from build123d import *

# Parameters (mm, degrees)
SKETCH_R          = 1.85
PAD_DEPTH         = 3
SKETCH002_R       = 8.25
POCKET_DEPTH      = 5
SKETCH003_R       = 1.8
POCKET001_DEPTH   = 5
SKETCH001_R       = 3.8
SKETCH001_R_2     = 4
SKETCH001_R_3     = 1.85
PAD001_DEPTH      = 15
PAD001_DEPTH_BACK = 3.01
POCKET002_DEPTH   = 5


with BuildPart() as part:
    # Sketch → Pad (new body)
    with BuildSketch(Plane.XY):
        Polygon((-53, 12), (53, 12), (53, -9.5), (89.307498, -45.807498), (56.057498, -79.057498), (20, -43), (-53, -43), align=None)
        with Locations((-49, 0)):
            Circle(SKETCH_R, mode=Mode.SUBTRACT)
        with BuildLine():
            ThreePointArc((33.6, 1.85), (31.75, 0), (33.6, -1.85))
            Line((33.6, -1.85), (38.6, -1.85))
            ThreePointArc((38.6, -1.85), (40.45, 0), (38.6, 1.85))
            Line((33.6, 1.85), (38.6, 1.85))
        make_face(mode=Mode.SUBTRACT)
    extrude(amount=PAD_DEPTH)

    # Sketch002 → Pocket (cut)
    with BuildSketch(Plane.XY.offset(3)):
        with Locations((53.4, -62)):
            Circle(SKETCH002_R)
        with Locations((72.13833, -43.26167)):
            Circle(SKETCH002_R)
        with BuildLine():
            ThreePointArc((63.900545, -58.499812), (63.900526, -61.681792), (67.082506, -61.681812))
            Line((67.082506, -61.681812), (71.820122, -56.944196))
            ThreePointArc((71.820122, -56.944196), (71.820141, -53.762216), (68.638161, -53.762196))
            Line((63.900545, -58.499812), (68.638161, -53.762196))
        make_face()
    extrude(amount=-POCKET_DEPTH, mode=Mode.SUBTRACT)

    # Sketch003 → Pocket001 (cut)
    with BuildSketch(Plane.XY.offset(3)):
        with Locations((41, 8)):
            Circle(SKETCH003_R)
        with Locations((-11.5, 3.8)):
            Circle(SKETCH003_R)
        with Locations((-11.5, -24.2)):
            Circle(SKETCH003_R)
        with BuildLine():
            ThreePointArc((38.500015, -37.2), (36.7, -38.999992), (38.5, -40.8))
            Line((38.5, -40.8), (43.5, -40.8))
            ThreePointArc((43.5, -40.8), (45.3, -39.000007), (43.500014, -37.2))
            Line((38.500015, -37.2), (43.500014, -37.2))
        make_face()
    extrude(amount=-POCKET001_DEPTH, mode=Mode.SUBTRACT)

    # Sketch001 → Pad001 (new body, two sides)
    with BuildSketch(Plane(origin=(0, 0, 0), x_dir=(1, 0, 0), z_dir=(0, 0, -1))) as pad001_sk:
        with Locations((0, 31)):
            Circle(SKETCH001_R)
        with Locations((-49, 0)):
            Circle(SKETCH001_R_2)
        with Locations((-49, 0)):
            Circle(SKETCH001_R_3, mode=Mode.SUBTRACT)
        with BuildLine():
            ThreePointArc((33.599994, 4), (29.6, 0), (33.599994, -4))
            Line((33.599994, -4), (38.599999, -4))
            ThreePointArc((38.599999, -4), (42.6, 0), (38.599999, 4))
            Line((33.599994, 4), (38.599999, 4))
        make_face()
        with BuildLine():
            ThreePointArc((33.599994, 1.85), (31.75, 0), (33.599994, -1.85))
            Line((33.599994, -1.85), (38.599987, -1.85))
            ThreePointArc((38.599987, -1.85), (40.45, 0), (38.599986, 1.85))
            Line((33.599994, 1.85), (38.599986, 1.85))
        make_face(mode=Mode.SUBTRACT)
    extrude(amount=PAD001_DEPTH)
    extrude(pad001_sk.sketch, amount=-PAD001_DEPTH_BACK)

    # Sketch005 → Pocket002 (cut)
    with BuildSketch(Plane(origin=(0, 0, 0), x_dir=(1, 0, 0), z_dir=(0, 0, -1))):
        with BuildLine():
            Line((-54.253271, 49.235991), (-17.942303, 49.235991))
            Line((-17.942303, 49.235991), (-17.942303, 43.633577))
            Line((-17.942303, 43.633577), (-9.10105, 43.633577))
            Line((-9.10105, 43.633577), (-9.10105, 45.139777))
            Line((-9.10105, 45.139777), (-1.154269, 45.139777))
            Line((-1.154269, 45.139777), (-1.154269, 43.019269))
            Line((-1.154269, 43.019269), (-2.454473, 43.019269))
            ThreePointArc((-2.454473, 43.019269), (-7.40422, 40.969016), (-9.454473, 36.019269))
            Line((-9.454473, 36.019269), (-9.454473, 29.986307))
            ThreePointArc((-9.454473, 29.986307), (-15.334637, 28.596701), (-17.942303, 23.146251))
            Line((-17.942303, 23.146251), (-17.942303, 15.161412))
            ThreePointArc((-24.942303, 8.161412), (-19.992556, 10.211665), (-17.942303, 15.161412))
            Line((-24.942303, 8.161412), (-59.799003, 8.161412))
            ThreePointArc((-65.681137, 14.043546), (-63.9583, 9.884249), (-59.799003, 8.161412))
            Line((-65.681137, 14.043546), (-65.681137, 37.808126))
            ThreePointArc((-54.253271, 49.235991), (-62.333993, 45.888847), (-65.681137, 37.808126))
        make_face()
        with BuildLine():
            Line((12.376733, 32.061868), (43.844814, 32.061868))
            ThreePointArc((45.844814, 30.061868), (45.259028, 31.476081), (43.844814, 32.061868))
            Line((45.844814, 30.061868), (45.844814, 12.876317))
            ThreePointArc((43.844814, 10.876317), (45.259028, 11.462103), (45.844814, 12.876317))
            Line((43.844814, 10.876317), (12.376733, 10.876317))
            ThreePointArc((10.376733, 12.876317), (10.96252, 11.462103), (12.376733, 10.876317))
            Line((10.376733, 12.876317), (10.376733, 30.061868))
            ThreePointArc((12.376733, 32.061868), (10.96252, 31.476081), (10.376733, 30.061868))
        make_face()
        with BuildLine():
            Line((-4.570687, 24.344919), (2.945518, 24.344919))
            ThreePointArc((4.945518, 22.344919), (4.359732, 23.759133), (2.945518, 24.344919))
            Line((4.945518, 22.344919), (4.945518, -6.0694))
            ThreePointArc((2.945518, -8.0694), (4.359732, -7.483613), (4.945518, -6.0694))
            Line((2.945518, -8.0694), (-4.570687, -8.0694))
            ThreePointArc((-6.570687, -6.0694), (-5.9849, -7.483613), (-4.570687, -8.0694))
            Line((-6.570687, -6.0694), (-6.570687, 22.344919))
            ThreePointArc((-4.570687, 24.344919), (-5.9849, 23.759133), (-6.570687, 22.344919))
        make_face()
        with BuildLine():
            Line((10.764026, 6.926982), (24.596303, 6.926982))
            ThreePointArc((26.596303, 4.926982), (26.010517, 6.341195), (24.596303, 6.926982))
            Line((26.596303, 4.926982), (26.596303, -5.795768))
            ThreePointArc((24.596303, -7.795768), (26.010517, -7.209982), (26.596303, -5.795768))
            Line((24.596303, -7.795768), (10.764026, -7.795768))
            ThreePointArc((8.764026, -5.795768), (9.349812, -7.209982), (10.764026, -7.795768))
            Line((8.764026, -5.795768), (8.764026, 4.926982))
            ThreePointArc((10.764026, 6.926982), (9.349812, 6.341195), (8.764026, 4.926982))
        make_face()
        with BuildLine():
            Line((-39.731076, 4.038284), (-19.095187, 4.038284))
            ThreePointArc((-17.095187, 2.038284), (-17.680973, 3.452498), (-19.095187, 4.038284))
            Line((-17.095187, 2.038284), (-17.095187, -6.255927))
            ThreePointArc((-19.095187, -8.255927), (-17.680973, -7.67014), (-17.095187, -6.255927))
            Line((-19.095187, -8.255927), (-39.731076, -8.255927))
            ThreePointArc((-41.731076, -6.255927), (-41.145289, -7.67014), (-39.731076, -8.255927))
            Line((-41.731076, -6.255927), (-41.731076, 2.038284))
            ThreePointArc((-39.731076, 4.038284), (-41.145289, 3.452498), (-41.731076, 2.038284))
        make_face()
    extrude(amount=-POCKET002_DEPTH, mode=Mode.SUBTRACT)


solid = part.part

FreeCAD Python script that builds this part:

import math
import FreeCAD as App
import Part
import Sketcher
from FreeCAD import Vector
Q = App.Units.Quantity


def add_polygon(sketch, points):
    """Adds a closed chain of lines whose ends are joined by coincident constraints."""
    first, n = sketch.GeometryCount, len(points)
    for a, b in zip(points, points[1:] + points[:1]):
        sketch.addGeometry(Part.LineSegment(App.Vector(*a, 0), App.Vector(*b, 0)), False)
    for i in range(n):
        sketch.addConstraint(Sketcher.Constraint("Coincident", first + i, 2, first + (i + 1) % n, 1))

doc = App.newDocument("Part")
params = doc.addObject("Spreadsheet::Sheet", "Params")
for row, (alias, value) in enumerate([
    ("sketch1_diameter", "3.7 mm"),
    ("sketch1_width", "106 mm"),
    ("sketch1_width2", "73 mm"),
    ("sketch1_width3", "5 mm"),
    ("sketch1_height", "55 mm"),
    ("pad1_length", "3 mm"),
    ("sketch2_diameter", "16.5 mm"),
    ("sketch2_radius", "2.25 mm"),
    ("sketch2_length", "6.700001 mm"),
    ("pocket1_length", "5 mm"),
    ("sketch3_diameter", "3.6 mm"),
    ("sketch3_width", "5 mm"),
    ("pocket2_length", "5 mm"),
    ("sketch4_diameter", "8 mm"),
    ("sketch4_diameter2", "7.6 mm"),
    ("sketch4_diameter3", "3.7 mm"),
    ("pad2_length", "15 mm"),
    ("pad2_length2", "3.01 mm"),
    ("sketch5_radius", "7.000002 mm"),
    ("sketch5_radius2", "2.000002 mm"),
    ("pocket3_length", "5 mm"),
], start=1):
    params.set(f"A{row}", alias)
    params.set(f"B{row}", "=" + value)
    params.setAlias(f"B{row}", alias)

body = doc.addObject("PartDesign::Body", "Body")

# Sketch on XY plane
sketch1 = doc.addObject("Sketcher::SketchObject", "Sketch")
body.addObject(sketch1)
sketch1.AttachmentSupport = (doc.XY_Plane, [""])
sketch1.MapMode = "FlatFace"
add_polygon(sketch1, [(53, 12), (-53, 12), (-53, -43), (20, -43), (56.057498, -79.057498), (89.307498, -45.807498), (53, -9.5)])  # lines 0-6
sketch1.addGeometry(Part.LineSegment(Vector(33.6, 1.85, 0), Vector(38.6, 1.85, 0)), False)  # 7
sketch1.addGeometry(Part.ArcOfCircle(Part.Circle(Vector(38.6, 0, 0), Vector(0, 0, 1), 1.85), math.radians(-90), math.radians(90)), False)  # 8
sketch1.addGeometry(Part.LineSegment(Vector(38.6, -1.85, 0), Vector(33.6, -1.85, 0)), False)  # 9
sketch1.addGeometry(Part.ArcOfCircle(Part.Circle(Vector(33.6, 0, 0), Vector(0, 0, 1), 1.85), math.radians(90), math.radians(270)), False)  # 10
sketch1.addGeometry(Part.Circle(Vector(-49, 0, 0), Vector(0, 0, 1), 1.85), False)  # 11
sketch1.addConstraint(Sketcher.Constraint("Tangent", 7, 2, 8, 2))
sketch1.addConstraint(Sketcher.Constraint("Tangent", 8, 1, 9, 1))
sketch1.addConstraint(Sketcher.Constraint("Tangent", 9, 2, 10, 2))
sketch1.addConstraint(Sketcher.Constraint("Tangent", 10, 1, 7, 1))
sketch1.addConstraint(Sketcher.Constraint("Horizontal", 0))
sketch1.addConstraint(Sketcher.Constraint("Vertical", 1))
sketch1.addConstraint(Sketcher.Constraint("Horizontal", 2))
sketch1.addConstraint(Sketcher.Constraint("Vertical", 6))
sketch1.addConstraint(Sketcher.Constraint("Horizontal", 7))
sketch1.addConstraint(Sketcher.Constraint("Horizontal", 9))
sketch1.addConstraint(Sketcher.Constraint("Equal", 10, 11))
sketch1.addConstraint(Sketcher.Constraint("PointOnObject", 8, 3, -1))
sketch1.addConstraint(Sketcher.Constraint("PointOnObject", 11, 3, -1))
sketch1.addConstraint(Sketcher.Constraint("Perpendicular", 3, 4))
sketch1.addConstraint(Sketcher.Constraint("Perpendicular", 4, 5))
sketch1.addConstraint(Sketcher.Constraint("Diameter", 11, Q("3.7 mm")))
sketch1.addConstraint(Sketcher.Constraint("DistanceX", 0, 2, 0, 1, Q("106 mm")))
sketch1.addConstraint(Sketcher.Constraint("DistanceX", 2, 1, 2, 2, Q("73 mm")))
sketch1.addConstraint(Sketcher.Constraint("DistanceX", 7, 1, 7, 2, Q("5 mm")))
sketch1.addConstraint(Sketcher.Constraint("DistanceY", 1, 2, 1, 1, Q("55 mm")))
sketch1.addConstraint(Sketcher.Constraint("Angle", 3, Q("-45 deg")))
sketch1.addConstraint(Sketcher.Constraint("DistanceY", 6, 1, 6, 2, Q("21.5 mm")))
sketch1.addConstraint(Sketcher.Constraint("DistanceX", 11, 3, -1, 1, Q("49 mm")))
sketch1.addConstraint(Sketcher.Constraint("DistanceX", 0, 2, -1, 1, Q("53 mm")))
sketch1.addConstraint(Sketcher.Constraint("DistanceY", -1, 1, 0, 2, Q("12 mm")))
sketch1.addConstraint(Sketcher.Constraint("DistanceX", -1, 1, 8, 3, Q("38.6 mm")))
sketch1.addConstraint(Sketcher.Constraint("DistanceX", -1, 1, 3, 2, Q("56.057498 mm")))
sketch1.setExpression("Constraints[22]", "Params.sketch1_diameter")
sketch1.setExpression("Constraints[23]", "Params.sketch1_width")
sketch1.setExpression("Constraints[24]", "Params.sketch1_width2")
sketch1.setExpression("Constraints[25]", "Params.sketch1_width3")
sketch1.setExpression("Constraints[26]", "Params.sketch1_height")
pad1 = doc.addObject("PartDesign::Pad", "Pad")
body.addObject(pad1)
pad1.Profile = sketch1
pad1.setExpression("Length", "Params.pad1_length")

# Sketch on XY plane
sketch2 = doc.addObject("Sketcher::SketchObject", "Sketch001")
body.addObject(sketch2)
sketch2.AttachmentSupport = (doc.XY_Plane, [""])
sketch2.MapMode = "FlatFace"
sketch2.AttachmentOffset = App.Placement(Vector(0, 0, 3), App.Rotation())
sketch2.addGeometry(Part.Circle(Vector(53.4, -62, 0), Vector(0, 0, 1), 8.25), False)
sketch2.addGeometry(Part.Circle(Vector(72.13833, -43.26167, 0), Vector(0, 0, 1), 8.25), False)
sketch2.addGeometry(Part.ArcOfCircle(Part.Circle(Vector(65.491526, -60.090812, 0), Vector(0, 0, 1), 2.25), math.radians(134.999667), math.radians(314.999631)), False)
sketch2.addGeometry(Part.LineSegment(Vector(67.082506, -61.681812, 0), Vector(71.820122, -56.944196, 0)), False)
sketch2.addGeometry(Part.ArcOfCircle(Part.Circle(Vector(70.229141, -55.353197, 0), Vector(0, 0, 1), 2.25), math.radians(-45.000333), math.radians(134.999631)), False)
sketch2.addGeometry(Part.LineSegment(Vector(68.638161, -53.762196, 0), Vector(63.900545, -58.499812, 0)), False)
sketch2.addConstraint(Sketcher.Constraint("Coincident", 2, 2, 3, 1))
sketch2.addConstraint(Sketcher.Constraint("Coincident", 3, 2, 4, 1))
sketch2.addConstraint(Sketcher.Constraint("Coincident", 4, 2, 5, 1))
sketch2.addConstraint(Sketcher.Constraint("Coincident", 5, 2, 2, 1))
sketch2.addConstraint(Sketcher.Constraint("Equal", 0, 1))
sketch2.addConstraint(Sketcher.Constraint("Equal", 2, 4))
sketch2.addConstraint(Sketcher.Constraint("Equal", 3, 5))
sketch2.addConstraint(Sketcher.Constraint("Diameter", 0, Q("16.5 mm")))
sketch2.addConstraint(Sketcher.Constraint("Angle", 3, Q("45 deg")))
sketch2.addConstraint(Sketcher.Constraint("Radius", 2, Q("2.25 mm")))
sketch2.addConstraint(Sketcher.Constraint("DistanceY", 0, 3, -1, 1, Q("62 mm")))
sketch2.addConstraint(Sketcher.Constraint("Distance", 3, Q("6.700001 mm")))
sketch2.addConstraint(Sketcher.Constraint("DistanceX", -1, 1, 0, 3, Q("53.4 mm")))
sketch2.addConstraint(Sketcher.Constraint("DistanceY", 2, 2, 2, 3, Q("1.591 mm")))
sketch2.addConstraint(Sketcher.Constraint("DistanceY", 3, 2, 4, 3, Q("1.590999 mm")))
sketch2.addConstraint(Sketcher.Constraint("DistanceY", 4, 3, 4, 2, Q("1.591 mm")))
sketch2.addConstraint(Sketcher.Constraint("DistanceX", -1, 1, 1, 3, Q("72.13833 mm")))
sketch2.addConstraint(Sketcher.Constraint("DistanceY", 1, 3, -1, 1, Q("43.26167 mm")))
sketch2.addConstraint(Sketcher.Constraint("DistanceY", 2, 3, -1, 1, Q("60.090812 mm")))
sketch2.addConstraint(Sketcher.Constraint("DistanceX", -1, 1, 4, 3, Q("70.229141 mm")))
sketch2.setExpression("Constraints[7]", "Params.sketch2_diameter")
sketch2.setExpression("Constraints[9]", "Params.sketch2_radius")
sketch2.setExpression("Constraints[11]", "Params.sketch2_length")
pocket1 = doc.addObject("PartDesign::Pocket", "Pocket")
body.addObject(pocket1)
pocket1.Profile = sketch2
pocket1.setExpression("Length", "Params.pocket1_length")

# Sketch on XY plane
sketch3 = doc.addObject("Sketcher::SketchObject", "Sketch002")
body.addObject(sketch3)
sketch3.AttachmentSupport = (doc.XY_Plane, [""])
sketch3.MapMode = "FlatFace"
sketch3.AttachmentOffset = App.Placement(Vector(0, 0, 3), App.Rotation())
sketch3.addGeometry(Part.Circle(Vector(41, 8, 0), Vector(0, 0, 1), 1.8), False)
sketch3.addGeometry(Part.Circle(Vector(-11.5, 3.8, 0), Vector(0, 0, 1), 1.8), False)
sketch3.addGeometry(Part.Circle(Vector(-11.5, -24.2, 0), Vector(0, 0, 1), 1.8), False)
sketch3.addGeometry(Part.ArcOfCircle(Part.Circle(Vector(38.5, -39, 0), Vector(0, 0, 1), 1.8), math.radians(89.999523), math.radians(270)), False)
sketch3.addGeometry(Part.LineSegment(Vector(38.5, -40.8, 0), Vector(43.5, -40.8, 0)), False)
sketch3.addGeometry(Part.ArcOfCircle(Part.Circle(Vector(43.5, -39, 0), Vector(0, 0, 1), 1.8), math.radians(-90), math.radians(89.999554)), False)
sketch3.addGeometry(Part.LineSegment(Vector(43.500014, -37.2, 0), Vector(38.500015, -37.2, 0)), False)
sketch3.addConstraint(Sketcher.Constraint("Tangent", 3, 2, 4, 1))
sketch3.addConstraint(Sketcher.Constraint("Tangent", 4, 2, 5, 1))
sketch3.addConstraint(Sketcher.Constraint("Coincident", 5, 2, 6, 1))
sketch3.addConstraint(Sketcher.Constraint("Coincident", 6, 2, 3, 1))
sketch3.addConstraint(Sketcher.Constraint("Horizontal", 4))
sketch3.addConstraint(Sketcher.Constraint("Horizontal", 6))
sketch3.addConstraint(Sketcher.Constraint("Equal", 0, 1))
sketch3.addConstraint(Sketcher.Constraint("Equal", 1, 2))
sketch3.addConstraint(Sketcher.Constraint("Equal", 2, 3))
sketch3.addConstraint(Sketcher.Constraint("Vertical", 1, 3, 2, 3))
sketch3.addConstraint(Sketcher.Constraint("Equal", 4, 6))
sketch3.addConstraint(Sketcher.Constraint("Diameter", 0, Q("3.6 mm")))
sketch3.addConstraint(Sketcher.Constraint("DistanceX", 4, 1, 4, 2, Q("5 mm")))
sketch3.addConstraint(Sketcher.Constraint("DistanceX", -1, 1, 0, 3, Q("41 mm")))
sketch3.addConstraint(Sketcher.Constraint("DistanceY", -1, 1, 0, 3, Q("8 mm")))
sketch3.addConstraint(Sketcher.Constraint("DistanceY", 3, 3, -1, 1, Q("39 mm")))
sketch3.addConstraint(Sketcher.Constraint("DistanceY", 2, 3, 1, 3, Q("28 mm")))
sketch3.addConstraint(Sketcher.Constraint("DistanceX", 2, 3, 3, 3, Q("50 mm")))
sketch3.addConstraint(Sketcher.Constraint("DistanceX", 1, 3, -1, 1, Q("11.5 mm")))
sketch3.addConstraint(Sketcher.Constraint("DistanceY", -1, 1, 1, 3, Q("3.8 mm")))
sketch3.addConstraint(Sketcher.Constraint("DistanceX", -1, 1, 5, 2, Q("43.500014 mm")))
sketch3.setExpression("Constraints[11]", "Params.sketch3_diameter")
sketch3.setExpression("Constraints[12]", "Params.sketch3_width")
pocket2 = doc.addObject("PartDesign::Pocket", "Pocket001")
body.addObject(pocket2)
pocket2.Profile = sketch3
pocket2.setExpression("Length", "Params.pocket2_length")

# Sketch on XY plane
sketch4 = doc.addObject("Sketcher::SketchObject", "Sketch003")
body.addObject(sketch4)
sketch4.AttachmentSupport = (doc.XY_Plane, [""])
sketch4.MapMode = "FlatFace"
sketch4.addGeometry(Part.Circle(Vector(0, -31, 0), Vector(0, 0, 1), 3.8), False)
sketch4.addGeometry(Part.Circle(Vector(-49, 0, 0), Vector(0, 0, 1), 4), False)
sketch4.addGeometry(Part.Circle(Vector(-49, 0, 0), Vector(0, 0, 1), 1.85), False)
sketch4.addGeometry(Part.ArcOfCircle(Part.Circle(Vector(33.6, 0, 0), Vector(0, 0, 1), 4), math.radians(90.000086), math.radians(269.999914)), False)
sketch4.addGeometry(Part.LineSegment(Vector(33.599994, 4, 0), Vector(38.599999, 4, 0)), False)
sketch4.addGeometry(Part.ArcOfCircle(Part.Circle(Vector(38.6, 0, 0), Vector(0, 0, 1), 4), math.radians(-90.000014), math.radians(90.000014)), False)
sketch4.addGeometry(Part.LineSegment(Vector(38.599999, -4, 0), Vector(33.599994, -4, 0)), False)
sketch4.addGeometry(Part.ArcOfCircle(Part.Circle(Vector(33.6, 0, 0), Vector(0, 0, 1), 1.85), math.radians(90.000186), math.radians(269.999814)), False)
sketch4.addGeometry(Part.LineSegment(Vector(33.599994, -1.85, 0), Vector(38.599986, -1.85, 0)), False)
sketch4.addGeometry(Part.ArcOfCircle(Part.Circle(Vector(38.6, 0, 0), Vector(0, 0, 1), 1.85), math.radians(-90.000434), math.radians(90.000403)), False)
sketch4.addGeometry(Part.LineSegment(Vector(38.599987, 1.85, 0), Vector(33.599994, 1.85, 0)), False)
sketch4.addConstraint(Sketcher.Constraint("Tangent", 3, 1, 4, 1))
sketch4.addConstraint(Sketcher.Constraint("Tangent", 4, 2, 5, 2))
sketch4.addConstraint(Sketcher.Constraint("Tangent", 5, 1, 6, 1))
sketch4.addConstraint(Sketcher.Constraint("Tangent", 6, 2, 3, 2))
sketch4.addConstraint(Sketcher.Constraint("Coincident", 7, 2, 8, 1))
sketch4.addConstraint(Sketcher.Constraint("Coincident", 8, 2, 9, 1))
sketch4.addConstraint(Sketcher.Constraint("Coincident", 9, 2, 10, 1))
sketch4.addConstraint(Sketcher.Constraint("Coincident", 10, 2, 7, 1))
sketch4.addConstraint(Sketcher.Constraint("Horizontal", 4))
sketch4.addConstraint(Sketcher.Constraint("Horizontal", 6))
sketch4.addConstraint(Sketcher.Constraint("Horizontal", 8))
sketch4.addConstraint(Sketcher.Constraint("Horizontal", 10))
sketch4.addConstraint(Sketcher.Constraint("Coincident", 2, 3, 1, 3))
sketch4.addConstraint(Sketcher.Constraint("Coincident", 7, 3, 3, 3))
sketch4.addConstraint(Sketcher.Constraint("Equal", 1, 3))
sketch4.addConstraint(Sketcher.Constraint("Equal", 2, 7))
sketch4.addConstraint(Sketcher.Constraint("Symmetric", 8, 2, 9, 2, -1))
sketch4.addConstraint(Sketcher.Constraint("PointOnObject", 0, 3, -2))
sketch4.addConstraint(Sketcher.Constraint("PointOnObject", 1, 3, -1))
sketch4.addConstraint(Sketcher.Constraint("Vertical", 9, 3, 4, 2))
sketch4.addConstraint(Sketcher.Constraint("Vertical", 6, 2, 7, 2))
sketch4.addConstraint(Sketcher.Constraint("Vertical", 7, 2, 10, 2))
sketch4.addConstraint(Sketcher.Constraint("Diameter", 1, Q("8 mm")))
sketch4.addConstraint(Sketcher.Constraint("Diameter", 0, Q("7.6 mm")))
sketch4.addConstraint(Sketcher.Constraint("Diameter", 2, Q("3.7 mm")))
sketch4.addConstraint(Sketcher.Constraint("DistanceY", 0, 3, -1, 1, Q("31 mm")))
sketch4.addConstraint(Sketcher.Constraint("DistanceX", 1, 3, -1, 1, Q("49 mm")))
sketch4.addConstraint(Sketcher.Constraint("DistanceX", 3, 3, 5, 3, Q("5 mm")))
sketch4.addConstraint(Sketcher.Constraint("DistanceX", -1, 1, 3, 3, Q("33.6 mm")))
sketch4.addConstraint(Sketcher.Constraint("DistanceX", 8, 1, 8, 2, Q("4.999992 mm")))
sketch4.setExpression("Constraints[22]", "Params.sketch4_diameter")
sketch4.setExpression("Constraints[23]", "Params.sketch4_diameter2")
sketch4.setExpression("Constraints[24]", "Params.sketch4_diameter3")
pad2 = doc.addObject("PartDesign::Pad", "Pad001")
body.addObject(pad2)
pad2.Profile = sketch4
pad2.Type = "TwoLengths"
pad2.setExpression("Length", "Params.pad2_length")
pad2.setExpression("Length2", "Params.pad2_length2")
pad2.Reversed = True

# Sketch on XY plane
sketch5 = doc.addObject("Sketcher::SketchObject", "Sketch004")
body.addObject(sketch5)
sketch5.AttachmentSupport = (doc.XY_Plane, [""])
sketch5.MapMode = "FlatFace"
sketch5.addGeometry(Part.LineSegment(Vector(-17.942303, -49.235991, 0), Vector(-54.253271, -49.235991, 0)), False)
sketch5.addGeometry(Part.ArcOfCircle(Part.Circle(Vector(-54.253273, -37.808127, 0), Vector(0, 0, 1), 11.427864), math.radians(179.999997), math.radians(270.000008)), False)
sketch5.addGeometry(Part.LineSegment(Vector(-65.681137, -37.808126, 0), Vector(-65.681137, -14.043546, 0)), False)
sketch5.addGeometry(Part.ArcOfCircle(Part.Circle(Vector(-59.799004, -14.043545, 0), Vector(0, 0, 1), 5.882133), math.radians(89.999995), math.radians(180.000005)), False)
sketch5.addGeometry(Part.LineSegment(Vector(-59.799003, -8.161412, 0), Vector(-24.942303, -8.161412, 0)), False)
sketch5.addGeometry(Part.ArcOfCircle(Part.Circle(Vector(-24.942305, -15.161414, 0), Vector(0, 0, 1), 7.000002), math.radians(0.000013), math.radians(89.999987)), False)
sketch5.addGeometry(Part.LineSegment(Vector(-17.942303, -15.161412, 0), Vector(-17.942303, -23.146251, 0)), False)
sketch5.addGeometry(Part.ArcOfCircle(Part.Circle(Vector(-10.942303, -23.146251, 0), Vector(0, 0, 1), 7), math.radians(179.999998), math.radians(282.271663)), False)
sketch5.addGeometry(Part.LineSegment(Vector(-9.454473, -29.986307, 0), Vector(-9.454473, -36.019269, 0)), False)
sketch5.addGeometry(Part.ArcOfCircle(Part.Circle(Vector(-2.454471, -36.019267, 0), Vector(0, 0, 1), 7.000002), math.radians(-179.999987), math.radians(-90.000013)), False)
sketch5.addGeometry(Part.LineSegment(Vector(-2.454473, -43.019269, 0), Vector(-1.154269, -43.019269, 0)), False)
sketch5.addGeometry(Part.LineSegment(Vector(-1.154269, -43.019269, 0), Vector(-1.154269, -45.139777, 0)), False)
sketch5.addGeometry(Part.LineSegment(Vector(-1.154269, -45.139777, 0), Vector(-9.10105, -45.139777, 0)), False)
sketch5.addGeometry(Part.LineSegment(Vector(-9.10105, -45.139777, 0), Vector(-9.10105, -43.633577, 0)), False)
sketch5.addGeometry(Part.LineSegment(Vector(-9.10105, -43.633577, 0), Vector(-17.942303, -43.633577, 0)), False)
sketch5.addGeometry(Part.LineSegment(Vector(-17.942303, -43.633577, 0), Vector(-17.942303, -49.235991, 0)), False)
sketch5.addGeometry(Part.LineSegment(Vector(43.844814, -32.061868, 0), Vector(12.376733, -32.061868, 0)), False)
sketch5.addGeometry(Part.ArcOfCircle(Part.Circle(Vector(12.376735, -30.061866, 0), Vector(0, 0, 1), 2.000002), math.radians(-179.999945), math.radians(-90.000055)), False)
sketch5.addGeometry(Part.LineSegment(Vector(10.376733, -30.061868, 0), Vector(10.376733, -12.876317, 0)), False)
sketch5.addGeometry(Part.ArcOfCircle(Part.Circle(Vector(12.376733, -12.876317, 0), Vector(0, 0, 1), 2), math.radians(90.000006), math.radians(179.999994)), False)
sketch5.addGeometry(Part.LineSegment(Vector(12.376733, -10.876317, 0), Vector(43.844814, -10.876317, 0)), False)
sketch5.addGeometry(Part.ArcOfCircle(Part.Circle(Vector(43.844815, -12.876316, 0), Vector(0, 0, 1), 1.999999), math.radians(-0.000043), math.radians(90.000043)), False)
sketch5.addGeometry(Part.LineSegment(Vector(45.844814, -12.876317, 0), Vector(45.844814, -30.061868, 0)), False)
sketch5.addGeometry(Part.ArcOfCircle(Part.Circle(Vector(43.844814, -30.061868, 0), Vector(0, 0, 1), 2), math.radians(-89.999994), math.radians(-0.000006)), False)
sketch5.addGeometry(Part.LineSegment(Vector(2.945518, -24.344919, 0), Vector(-4.570687, -24.344919, 0)), False)
sketch5.addGeometry(Part.ArcOfCircle(Part.Circle(Vector(-4.570687, -22.344919, 0), Vector(0, 0, 1), 2), math.radians(-179.999994), math.radians(-90.000006)), False)
sketch5.addGeometry(Part.LineSegment(Vector(-6.570687, -22.344919, 0), Vector(-6.570687, 6.0694, 0)), False)
sketch5.addGeometry(Part.ArcOfCircle(Part.Circle(Vector(-4.570685, 6.069398, 0), Vector(0, 0, 1), 2.000002), math.radians(90.000055), math.radians(179.999945)), False)
sketch5.addGeometry(Part.LineSegment(Vector(-4.570687, 8.0694, 0), Vector(2.945518, 8.0694, 0)), False)
sketch5.addGeometry(Part.ArcOfCircle(Part.Circle(Vector(2.945518, 6.0694, 0), Vector(0, 0, 1), 2), math.radians(0.000006), math.radians(89.999994)), False)
sketch5.addGeometry(Part.LineSegment(Vector(4.945518, 6.0694, 0), Vector(4.945518, -22.344919, 0)), False)
sketch5.addGeometry(Part.ArcOfCircle(Part.Circle(Vector(2.945519, -22.34492, 0), Vector(0, 0, 1), 1.999999), math.radians(-90.000043), math.radians(0.000043)), False)
sketch5.addGeometry(Part.LineSegment(Vector(24.596303, -6.926982, 0), Vector(10.764026, -6.926982, 0)), False)
sketch5.addGeometry(Part.ArcOfCircle(Part.Circle(Vector(10.764026, -4.926982, 0), Vector(0, 0, 1), 2), math.radians(-179.999994), math.radians(-90.000006)), False)
sketch5.addGeometry(Part.LineSegment(Vector(8.764026, -4.926982, 0), Vector(8.764026, 5.795768, 0)), False)
sketch5.addGeometry(Part.ArcOfCircle(Part.Circle(Vector(10.764025, 5.795769, 0), Vector(0, 0, 1), 1.999999), math.radians(89.999957), math.radians(180.000043)), False)
sketch5.addGeometry(Part.LineSegment(Vector(10.764026, 7.795768, 0), Vector(24.596303, 7.795768, 0)), False)
sketch5.addGeometry(Part.ArcOfCircle(Part.Circle(Vector(24.596304, 5.795769, 0), Vector(0, 0, 1), 1.999999), math.radians(-0.000043), math.radians(90.000043)), False)
sketch5.addGeometry(Part.LineSegment(Vector(26.596303, 5.795768, 0), Vector(26.596303, -4.926982, 0)), False)
sketch5.addGeometry(Part.ArcOfCircle(Part.Circle(Vector(24.596303, -4.926982, 0), Vector(0, 0, 1), 2), math.radians(-89.999994), math.radians(-0.000006)), False)
sketch5.addGeometry(Part.LineSegment(Vector(-19.095187, -4.038284, 0), Vector(-39.731076, -4.038284, 0)), False)
sketch5.addGeometry(Part.ArcOfCircle(Part.Circle(Vector(-39.731076, -2.038284, 0), Vector(0, 0, 1), 2), math.radians(-179.999994), math.radians(-90.000006)), False)
sketch5.addGeometry(Part.LineSegment(Vector(-41.731076, -2.038284, 0), Vector(-41.731076, 6.255927, 0)), False)
sketch5.addGeometry(Part.ArcOfCircle(Part.Circle(Vector(-39.731074, 6.255925, 0), Vector(0, 0, 1), 2.000002), math.radians(90.000055), math.radians(179.999945)), False)
sketch5.addGeometry(Part.LineSegment(Vector(-39.731076, 8.255927, 0), Vector(-19.095187, 8.255927, 0)), False)
sketch5.addGeometry(Part.ArcOfCircle(Part.Circle(Vector(-19.095187, 6.255927, 0), Vector(0, 0, 1), 2), math.radians(0.000006), math.radians(89.999994)), False)
sketch5.addGeometry(Part.LineSegment(Vector(-17.095187, 6.255927, 0), Vector(-17.095187, -2.038284, 0)), False)
sketch5.addGeometry(Part.ArcOfCircle(Part.Circle(Vector(-19.095186, -2.038285, 0), Vector(0, 0, 1), 1.999999), math.radians(-90.000043), math.radians(0.000043)), False)
sketch5.addConstraint(Sketcher.Constraint("Tangent", 0, 2, 1, 2))
sketch5.addConstraint(Sketcher.Constraint("Tangent", 1, 1, 2, 1))
sketch5.addConstraint(Sketcher.Constraint("Tangent", 2, 2, 3, 2))
sketch5.addConstraint(Sketcher.Constraint("Tangent", 3, 1, 4, 1))
sketch5.addConstraint(Sketcher.Constraint("Tangent", 4, 2, 5, 2))
sketch5.addConstraint(Sketcher.Constraint("Tangent", 5, 1, 6, 1))
sketch5.addConstraint(Sketcher.Constraint("Tangent", 6, 2, 7, 1))
sketch5.addConstraint(Sketcher.Constraint("Coincident", 7, 2, 8, 1))
sketch5.addConstraint(Sketcher.Constraint("Tangent", 8, 2, 9, 1))
sketch5.addConstraint(Sketcher.Constraint("Tangent", 9, 2, 10, 1))
sketch5.addConstraint(Sketcher.Constraint("Coincident", 10, 2, 11, 1))
sketch5.addConstraint(Sketcher.Constraint("Coincident", 11, 2, 12, 1))
sketch5.addConstraint(Sketcher.Constraint("Coincident", 12, 2, 13, 1))
sketch5.addConstraint(Sketcher.Constraint("Coincident", 13, 2, 14, 1))
sketch5.addConstraint(Sketcher.Constraint("Coincident", 14, 2, 15, 1))
sketch5.addConstraint(Sketcher.Constraint("Coincident", 15, 2, 0, 1))
sketch5.addConstraint(Sketcher.Constraint("Tangent", 16, 2, 17, 2))
sketch5.addConstraint(Sketcher.Constraint("Tangent", 17, 1, 18, 1))
sketch5.addConstraint(Sketcher.Constraint("Tangent", 18, 2, 19, 2))
sketch5.addConstraint(Sketcher.Constraint("Tangent", 19, 1, 20, 1))
sketch5.addConstraint(Sketcher.Constraint("Tangent", 20, 2, 21, 2))
sketch5.addConstraint(Sketcher.Constraint("Tangent", 21, 1, 22, 1))
sketch5.addConstraint(Sketcher.Constraint("Tangent", 22, 2, 23, 2))
sketch5.addConstraint(Sketcher.Constraint("Tangent", 23, 1, 16, 1))
sketch5.addConstraint(Sketcher.Constraint("Tangent", 24, 2, 25, 2))
sketch5.addConstraint(Sketcher.Constraint("Tangent", 25, 1, 26, 1))
sketch5.addConstraint(Sketcher.Constraint("Tangent", 26, 2, 27, 2))
sketch5.addConstraint(Sketcher.Constraint("Tangent", 27, 1, 28, 1))
sketch5.addConstraint(Sketcher.Constraint("Tangent", 28, 2, 29, 2))
sketch5.addConstraint(Sketcher.Constraint("Tangent", 29, 1, 30, 1))
sketch5.addConstraint(Sketcher.Constraint("Tangent", 30, 2, 31, 2))
sketch5.addConstraint(Sketcher.Constraint("Tangent", 31, 1, 24, 1))
sketch5.addConstraint(Sketcher.Constraint("Tangent", 32, 2, 33, 2))
sketch5.addConstraint(Sketcher.Constraint("Tangent", 33, 1, 34, 1))
sketch5.addConstraint(Sketcher.Constraint("Tangent", 34, 2, 35, 2))
sketch5.addConstraint(Sketcher.Constraint("Tangent", 35, 1, 36, 1))
sketch5.addConstraint(Sketcher.Constraint("Tangent", 36, 2, 37, 2))
sketch5.addConstraint(Sketcher.Constraint("Tangent", 37, 1, 38, 1))
sketch5.addConstraint(Sketcher.Constraint("Tangent", 38, 2, 39, 2))
sketch5.addConstraint(Sketcher.Constraint("Tangent", 39, 1, 32, 1))
sketch5.addConstraint(Sketcher.Constraint("Tangent", 40, 2, 41, 2))
sketch5.addConstraint(Sketcher.Constraint("Tangent", 41, 1, 42, 1))
sketch5.addConstraint(Sketcher.Constraint("Tangent", 42, 2, 43, 2))
sketch5.addConstraint(Sketcher.Constraint("Tangent", 43, 1, 44, 1))
sketch5.addConstraint(Sketcher.Constraint("Tangent", 44, 2, 45, 2))
sketch5.addConstraint(Sketcher.Constraint("Tangent", 45, 1, 46, 1))
sketch5.addConstraint(Sketcher.Constraint("Tangent", 46, 2, 47, 2))
sketch5.addConstraint(Sketcher.Constraint("Tangent", 47, 1, 40, 1))
sketch5.addConstraint(Sketcher.Constraint("Horizontal", 0))
sketch5.addConstraint(Sketcher.Constraint("Vertical", 2))
sketch5.addConstraint(Sketcher.Constraint("Horizontal", 4))
sketch5.addConstraint(Sketcher.Constraint("Vertical", 6))
sketch5.addConstraint(Sketcher.Constraint("Vertical", 8))
sketch5.addConstraint(Sketcher.Constraint("Horizontal", 10))
sketch5.addConstraint(Sketcher.Constraint("Vertical", 11))
sketch5.addConstraint(Sketcher.Constraint("Horizontal", 12))
sketch5.addConstraint(Sketcher.Constraint("Vertical", 13))
sketch5.addConstraint(Sketcher.Constraint("Horizontal", 14))
sketch5.addConstraint(Sketcher.Constraint("Vertical", 15))
sketch5.addConstraint(Sketcher.Constraint("Horizontal", 16))
sketch5.addConstraint(Sketcher.Constraint("Vertical", 18))
sketch5.addConstraint(Sketcher.Constraint("Horizontal", 20))
sketch5.addConstraint(Sketcher.Constraint("Vertical", 22))
sketch5.addConstraint(Sketcher.Constraint("Horizontal", 24))
sketch5.addConstraint(Sketcher.Constraint("Vertical", 26))
sketch5.addConstraint(Sketcher.Constraint("Horizontal", 28))
sketch5.addConstraint(Sketcher.Constraint("Vertical", 30))
sketch5.addConstraint(Sketcher.Constraint("Horizontal", 32))
sketch5.addConstraint(Sketcher.Constraint("Vertical", 34))
sketch5.addConstraint(Sketcher.Constraint("Horizontal", 36))
sketch5.addConstraint(Sketcher.Constraint("Vertical", 38))
sketch5.addConstraint(Sketcher.Constraint("Horizontal", 40))
sketch5.addConstraint(Sketcher.Constraint("Vertical", 42))
sketch5.addConstraint(Sketcher.Constraint("Horizontal", 44))
sketch5.addConstraint(Sketcher.Constraint("Vertical", 46))
sketch5.addConstraint(Sketcher.Constraint("Equal", 5, 7))
sketch5.addConstraint(Sketcher.Constraint("Equal", 7, 9))
sketch5.addConstraint(Sketcher.Constraint("Equal", 17, 19))
sketch5.addConstraint(Sketcher.Constraint("Equal", 19, 21))
sketch5.addConstraint(Sketcher.Constraint("Equal", 21, 23))
sketch5.addConstraint(Sketcher.Constraint("Equal", 23, 25))
sketch5.addConstraint(Sketcher.Constraint("Equal", 25, 27))
sketch5.addConstraint(Sketcher.Constraint("Equal", 27, 29))
sketch5.addConstraint(Sketcher.Constraint("Equal", 29, 31))
sketch5.addConstraint(Sketcher.Constraint("Equal", 31, 33))
sketch5.addConstraint(Sketcher.Constraint("Equal", 33, 35))
sketch5.addConstraint(Sketcher.Constraint("Equal", 35, 37))
sketch5.addConstraint(Sketcher.Constraint("Equal", 37, 39))
sketch5.addConstraint(Sketcher.Constraint("Equal", 39, 41))
sketch5.addConstraint(Sketcher.Constraint("Equal", 41, 43))
sketch5.addConstraint(Sketcher.Constraint("Equal", 43, 45))
sketch5.addConstraint(Sketcher.Constraint("Equal", 45, 47))
sketch5.addConstraint(Sketcher.Constraint("Vertical", 6, 2, 14, 2))
sketch5.addConstraint(Sketcher.Constraint("Radius", 5, Q("7.000002 mm")))
sketch5.addConstraint(Sketcher.Constraint("Radius", 17, Q("2.000002 mm")))
sketch5.addConstraint(Sketcher.Constraint("DistanceX", 4, 1, 4, 2, Q("34.8567 mm")))
sketch5.addConstraint(Sketcher.Constraint("DistanceY", 13, 1, 13, 2, Q("1.5062 mm")))
sketch5.addConstraint(Sketcher.Constraint("Radius", 1, Q("11.427864 mm")))
sketch5.addConstraint(Sketcher.Constraint("Radius", 3, Q("5.882133 mm")))
sketch5.addConstraint(Sketcher.Constraint("DistanceX", 12, 2, 12, 1, Q("7.946781 mm")))
sketch5.addConstraint(Sketcher.Constraint("DistanceX", 16, 2, 16, 1, Q("31.468081 mm")))
sketch5.addConstraint(Sketcher.Constraint("DistanceX", 40, 2, 40, 1, Q("20.635889 mm")))
sketch5.addConstraint(Sketcher.Constraint("DistanceY", 2, 1, 2, 2, Q("23.76458 mm")))
sketch5.addConstraint(Sketcher.Constraint("DistanceY", 6, 2, 6, 1, Q("7.984839 mm")))
sketch5.addConstraint(Sketcher.Constraint("DistanceY", 11, 2, 11, 1, Q("2.120508 mm")))
sketch5.addConstraint(Sketcher.Constraint("DistanceY", 18, 1, 18, 2, Q("17.185551 mm")))
sketch5.addConstraint(Sketcher.Constraint("DistanceY", 26, 1, 26, 2, Q("28.414319 mm")))
sketch5.addConstraint(Sketcher.Constraint("DistanceY", 34, 1, 34, 2, Q("10.72275 mm")))
sketch5.addConstraint(Sketcher.Constraint("DistanceY", 42, 1, 42, 2, Q("8.294211 mm")))
sketch5.addConstraint(Sketcher.Constraint("DistanceY", -1, 1, 27, 3, Q("6.069398 mm")))
sketch5.addConstraint(Sketcher.Constraint("DistanceX", 10, 1, 10, 2, Q("1.300204 mm")))
sketch5.addConstraint(Sketcher.Constraint("DistanceX", 14, 2, 14, 1, Q("8.841253 mm")))
sketch5.addConstraint(Sketcher.Constraint("DistanceX", 24, 2, 24, 1, Q("7.516205 mm")))
sketch5.addConstraint(Sketcher.Constraint("DistanceX", 32, 2, 32, 1, Q("13.832277 mm")))
sketch5.addConstraint(Sketcher.Constraint("DistanceY", 8, 2, 8, 1, Q("6.032962 mm")))
sketch5.addConstraint(Sketcher.Constraint("DistanceY", 7, 3, -1, 1, Q("23.146251 mm")))
sketch5.addConstraint(Sketcher.Constraint("DistanceX", 9, 3, -1, 1, Q("2.454471 mm")))
sketch5.addConstraint(Sketcher.Constraint("DistanceX", -1, 1, 31, 3, Q("2.945519 mm")))
sketch5.addConstraint(Sketcher.Constraint("DistanceY", 33, 3, -1, 1, Q("4.926982 mm")))
sketch5.addConstraint(Sketcher.Constraint("DistanceY", 17, 1, -1, 1, Q("30.061868 mm")))
sketch5.addConstraint(Sketcher.Constraint("DistanceX", -1, 1, 17, 3, Q("12.376735 mm")))
sketch5.addConstraint(Sketcher.Constraint("DistanceX", -1, 1, 33, 3, Q("10.764026 mm")))
sketch5.addConstraint(Sketcher.Constraint("DistanceX", 41, 3, -1, 1, Q("39.731076 mm")))
sketch5.addConstraint(Sketcher.Constraint("DistanceY", 41, 3, -1, 1, Q("2.038284 mm")))
sketch5.setExpression("Constraints[93]", "Params.sketch5_radius")
sketch5.setExpression("Constraints[94]", "Params.sketch5_radius2")
pocket3 = doc.addObject("PartDesign::Pocket", "Pocket002")
body.addObject(pocket3)
pocket3.Profile = sketch5
pocket3.setExpression("Length", "Params.pocket3_length")
pocket3.Reversed = True

doc.recompute()
